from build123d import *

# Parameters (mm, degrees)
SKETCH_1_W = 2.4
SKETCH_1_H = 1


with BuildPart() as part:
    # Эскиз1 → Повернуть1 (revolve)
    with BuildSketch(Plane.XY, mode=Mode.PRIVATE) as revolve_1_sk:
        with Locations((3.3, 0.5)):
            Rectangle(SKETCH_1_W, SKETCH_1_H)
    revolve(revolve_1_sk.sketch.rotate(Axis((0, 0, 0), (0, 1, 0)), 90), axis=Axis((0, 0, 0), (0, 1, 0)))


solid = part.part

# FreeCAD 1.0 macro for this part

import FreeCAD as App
import Part
import Sketcher
from FreeCAD import Vector
Q = App.Units.Quantity


def add_polygon(sketch, points):
    """Adds a closed chain of lines whose ends are joined by coincident constraints."""
    first, n = sketch.GeometryCount, len(points)
    for a, b in zip(points, points[1:] + points[:1]):
        sketch.addGeometry(Part.LineSegment(App.Vector(*a, 0), App.Vector(*b, 0)), False)
    for i in range(n):
        sketch.addConstraint(Sketcher.Constraint("Coincident", first + i, 2, first + (i + 1) % n, 1))

doc = App.newDocument("Part")
body = doc.addObject("PartDesign::Body", "Body")

sketch1 = body.newObject("Sketcher::SketchObject", "Sketch")
sketch1.AttachmentSupport = (doc.getObject("XY_Plane"), [""])
sketch1.MapMode = "FlatFace"
add_polygon(sketch1, [(2.1, 1), (2.1, 0), (4.5, 0), (4.5, 1)])
sketch1.addConstraint([
    Sketcher.Constraint("Vertical", 0),
    Sketcher.Constraint("Horizontal", 1),
    Sketcher.Constraint("Vertical", 2),
    Sketcher.Constraint("Horizontal", 3),
    Sketcher.Constraint("PointOnObject", 0, 2, -1),
    Sketcher.Constraint("DistanceY", 0, 2, 0, 1, Q("1 mm")),
    Sketcher.Constraint("DistanceX", 1, 1, 1, 2, Q("2.4 mm")),
    Sketcher.Constraint("DistanceX", -1, 1, 0, 2, Q("2.1 mm")),
])
revolution = body.newObject("PartDesign::Revolution", "Revolution")
revolution.Profile = sketch1
revolution.ReferenceAxis = (sketch1, ["V_Axis"])
revolution.Angle = 360

doc.recompute()
